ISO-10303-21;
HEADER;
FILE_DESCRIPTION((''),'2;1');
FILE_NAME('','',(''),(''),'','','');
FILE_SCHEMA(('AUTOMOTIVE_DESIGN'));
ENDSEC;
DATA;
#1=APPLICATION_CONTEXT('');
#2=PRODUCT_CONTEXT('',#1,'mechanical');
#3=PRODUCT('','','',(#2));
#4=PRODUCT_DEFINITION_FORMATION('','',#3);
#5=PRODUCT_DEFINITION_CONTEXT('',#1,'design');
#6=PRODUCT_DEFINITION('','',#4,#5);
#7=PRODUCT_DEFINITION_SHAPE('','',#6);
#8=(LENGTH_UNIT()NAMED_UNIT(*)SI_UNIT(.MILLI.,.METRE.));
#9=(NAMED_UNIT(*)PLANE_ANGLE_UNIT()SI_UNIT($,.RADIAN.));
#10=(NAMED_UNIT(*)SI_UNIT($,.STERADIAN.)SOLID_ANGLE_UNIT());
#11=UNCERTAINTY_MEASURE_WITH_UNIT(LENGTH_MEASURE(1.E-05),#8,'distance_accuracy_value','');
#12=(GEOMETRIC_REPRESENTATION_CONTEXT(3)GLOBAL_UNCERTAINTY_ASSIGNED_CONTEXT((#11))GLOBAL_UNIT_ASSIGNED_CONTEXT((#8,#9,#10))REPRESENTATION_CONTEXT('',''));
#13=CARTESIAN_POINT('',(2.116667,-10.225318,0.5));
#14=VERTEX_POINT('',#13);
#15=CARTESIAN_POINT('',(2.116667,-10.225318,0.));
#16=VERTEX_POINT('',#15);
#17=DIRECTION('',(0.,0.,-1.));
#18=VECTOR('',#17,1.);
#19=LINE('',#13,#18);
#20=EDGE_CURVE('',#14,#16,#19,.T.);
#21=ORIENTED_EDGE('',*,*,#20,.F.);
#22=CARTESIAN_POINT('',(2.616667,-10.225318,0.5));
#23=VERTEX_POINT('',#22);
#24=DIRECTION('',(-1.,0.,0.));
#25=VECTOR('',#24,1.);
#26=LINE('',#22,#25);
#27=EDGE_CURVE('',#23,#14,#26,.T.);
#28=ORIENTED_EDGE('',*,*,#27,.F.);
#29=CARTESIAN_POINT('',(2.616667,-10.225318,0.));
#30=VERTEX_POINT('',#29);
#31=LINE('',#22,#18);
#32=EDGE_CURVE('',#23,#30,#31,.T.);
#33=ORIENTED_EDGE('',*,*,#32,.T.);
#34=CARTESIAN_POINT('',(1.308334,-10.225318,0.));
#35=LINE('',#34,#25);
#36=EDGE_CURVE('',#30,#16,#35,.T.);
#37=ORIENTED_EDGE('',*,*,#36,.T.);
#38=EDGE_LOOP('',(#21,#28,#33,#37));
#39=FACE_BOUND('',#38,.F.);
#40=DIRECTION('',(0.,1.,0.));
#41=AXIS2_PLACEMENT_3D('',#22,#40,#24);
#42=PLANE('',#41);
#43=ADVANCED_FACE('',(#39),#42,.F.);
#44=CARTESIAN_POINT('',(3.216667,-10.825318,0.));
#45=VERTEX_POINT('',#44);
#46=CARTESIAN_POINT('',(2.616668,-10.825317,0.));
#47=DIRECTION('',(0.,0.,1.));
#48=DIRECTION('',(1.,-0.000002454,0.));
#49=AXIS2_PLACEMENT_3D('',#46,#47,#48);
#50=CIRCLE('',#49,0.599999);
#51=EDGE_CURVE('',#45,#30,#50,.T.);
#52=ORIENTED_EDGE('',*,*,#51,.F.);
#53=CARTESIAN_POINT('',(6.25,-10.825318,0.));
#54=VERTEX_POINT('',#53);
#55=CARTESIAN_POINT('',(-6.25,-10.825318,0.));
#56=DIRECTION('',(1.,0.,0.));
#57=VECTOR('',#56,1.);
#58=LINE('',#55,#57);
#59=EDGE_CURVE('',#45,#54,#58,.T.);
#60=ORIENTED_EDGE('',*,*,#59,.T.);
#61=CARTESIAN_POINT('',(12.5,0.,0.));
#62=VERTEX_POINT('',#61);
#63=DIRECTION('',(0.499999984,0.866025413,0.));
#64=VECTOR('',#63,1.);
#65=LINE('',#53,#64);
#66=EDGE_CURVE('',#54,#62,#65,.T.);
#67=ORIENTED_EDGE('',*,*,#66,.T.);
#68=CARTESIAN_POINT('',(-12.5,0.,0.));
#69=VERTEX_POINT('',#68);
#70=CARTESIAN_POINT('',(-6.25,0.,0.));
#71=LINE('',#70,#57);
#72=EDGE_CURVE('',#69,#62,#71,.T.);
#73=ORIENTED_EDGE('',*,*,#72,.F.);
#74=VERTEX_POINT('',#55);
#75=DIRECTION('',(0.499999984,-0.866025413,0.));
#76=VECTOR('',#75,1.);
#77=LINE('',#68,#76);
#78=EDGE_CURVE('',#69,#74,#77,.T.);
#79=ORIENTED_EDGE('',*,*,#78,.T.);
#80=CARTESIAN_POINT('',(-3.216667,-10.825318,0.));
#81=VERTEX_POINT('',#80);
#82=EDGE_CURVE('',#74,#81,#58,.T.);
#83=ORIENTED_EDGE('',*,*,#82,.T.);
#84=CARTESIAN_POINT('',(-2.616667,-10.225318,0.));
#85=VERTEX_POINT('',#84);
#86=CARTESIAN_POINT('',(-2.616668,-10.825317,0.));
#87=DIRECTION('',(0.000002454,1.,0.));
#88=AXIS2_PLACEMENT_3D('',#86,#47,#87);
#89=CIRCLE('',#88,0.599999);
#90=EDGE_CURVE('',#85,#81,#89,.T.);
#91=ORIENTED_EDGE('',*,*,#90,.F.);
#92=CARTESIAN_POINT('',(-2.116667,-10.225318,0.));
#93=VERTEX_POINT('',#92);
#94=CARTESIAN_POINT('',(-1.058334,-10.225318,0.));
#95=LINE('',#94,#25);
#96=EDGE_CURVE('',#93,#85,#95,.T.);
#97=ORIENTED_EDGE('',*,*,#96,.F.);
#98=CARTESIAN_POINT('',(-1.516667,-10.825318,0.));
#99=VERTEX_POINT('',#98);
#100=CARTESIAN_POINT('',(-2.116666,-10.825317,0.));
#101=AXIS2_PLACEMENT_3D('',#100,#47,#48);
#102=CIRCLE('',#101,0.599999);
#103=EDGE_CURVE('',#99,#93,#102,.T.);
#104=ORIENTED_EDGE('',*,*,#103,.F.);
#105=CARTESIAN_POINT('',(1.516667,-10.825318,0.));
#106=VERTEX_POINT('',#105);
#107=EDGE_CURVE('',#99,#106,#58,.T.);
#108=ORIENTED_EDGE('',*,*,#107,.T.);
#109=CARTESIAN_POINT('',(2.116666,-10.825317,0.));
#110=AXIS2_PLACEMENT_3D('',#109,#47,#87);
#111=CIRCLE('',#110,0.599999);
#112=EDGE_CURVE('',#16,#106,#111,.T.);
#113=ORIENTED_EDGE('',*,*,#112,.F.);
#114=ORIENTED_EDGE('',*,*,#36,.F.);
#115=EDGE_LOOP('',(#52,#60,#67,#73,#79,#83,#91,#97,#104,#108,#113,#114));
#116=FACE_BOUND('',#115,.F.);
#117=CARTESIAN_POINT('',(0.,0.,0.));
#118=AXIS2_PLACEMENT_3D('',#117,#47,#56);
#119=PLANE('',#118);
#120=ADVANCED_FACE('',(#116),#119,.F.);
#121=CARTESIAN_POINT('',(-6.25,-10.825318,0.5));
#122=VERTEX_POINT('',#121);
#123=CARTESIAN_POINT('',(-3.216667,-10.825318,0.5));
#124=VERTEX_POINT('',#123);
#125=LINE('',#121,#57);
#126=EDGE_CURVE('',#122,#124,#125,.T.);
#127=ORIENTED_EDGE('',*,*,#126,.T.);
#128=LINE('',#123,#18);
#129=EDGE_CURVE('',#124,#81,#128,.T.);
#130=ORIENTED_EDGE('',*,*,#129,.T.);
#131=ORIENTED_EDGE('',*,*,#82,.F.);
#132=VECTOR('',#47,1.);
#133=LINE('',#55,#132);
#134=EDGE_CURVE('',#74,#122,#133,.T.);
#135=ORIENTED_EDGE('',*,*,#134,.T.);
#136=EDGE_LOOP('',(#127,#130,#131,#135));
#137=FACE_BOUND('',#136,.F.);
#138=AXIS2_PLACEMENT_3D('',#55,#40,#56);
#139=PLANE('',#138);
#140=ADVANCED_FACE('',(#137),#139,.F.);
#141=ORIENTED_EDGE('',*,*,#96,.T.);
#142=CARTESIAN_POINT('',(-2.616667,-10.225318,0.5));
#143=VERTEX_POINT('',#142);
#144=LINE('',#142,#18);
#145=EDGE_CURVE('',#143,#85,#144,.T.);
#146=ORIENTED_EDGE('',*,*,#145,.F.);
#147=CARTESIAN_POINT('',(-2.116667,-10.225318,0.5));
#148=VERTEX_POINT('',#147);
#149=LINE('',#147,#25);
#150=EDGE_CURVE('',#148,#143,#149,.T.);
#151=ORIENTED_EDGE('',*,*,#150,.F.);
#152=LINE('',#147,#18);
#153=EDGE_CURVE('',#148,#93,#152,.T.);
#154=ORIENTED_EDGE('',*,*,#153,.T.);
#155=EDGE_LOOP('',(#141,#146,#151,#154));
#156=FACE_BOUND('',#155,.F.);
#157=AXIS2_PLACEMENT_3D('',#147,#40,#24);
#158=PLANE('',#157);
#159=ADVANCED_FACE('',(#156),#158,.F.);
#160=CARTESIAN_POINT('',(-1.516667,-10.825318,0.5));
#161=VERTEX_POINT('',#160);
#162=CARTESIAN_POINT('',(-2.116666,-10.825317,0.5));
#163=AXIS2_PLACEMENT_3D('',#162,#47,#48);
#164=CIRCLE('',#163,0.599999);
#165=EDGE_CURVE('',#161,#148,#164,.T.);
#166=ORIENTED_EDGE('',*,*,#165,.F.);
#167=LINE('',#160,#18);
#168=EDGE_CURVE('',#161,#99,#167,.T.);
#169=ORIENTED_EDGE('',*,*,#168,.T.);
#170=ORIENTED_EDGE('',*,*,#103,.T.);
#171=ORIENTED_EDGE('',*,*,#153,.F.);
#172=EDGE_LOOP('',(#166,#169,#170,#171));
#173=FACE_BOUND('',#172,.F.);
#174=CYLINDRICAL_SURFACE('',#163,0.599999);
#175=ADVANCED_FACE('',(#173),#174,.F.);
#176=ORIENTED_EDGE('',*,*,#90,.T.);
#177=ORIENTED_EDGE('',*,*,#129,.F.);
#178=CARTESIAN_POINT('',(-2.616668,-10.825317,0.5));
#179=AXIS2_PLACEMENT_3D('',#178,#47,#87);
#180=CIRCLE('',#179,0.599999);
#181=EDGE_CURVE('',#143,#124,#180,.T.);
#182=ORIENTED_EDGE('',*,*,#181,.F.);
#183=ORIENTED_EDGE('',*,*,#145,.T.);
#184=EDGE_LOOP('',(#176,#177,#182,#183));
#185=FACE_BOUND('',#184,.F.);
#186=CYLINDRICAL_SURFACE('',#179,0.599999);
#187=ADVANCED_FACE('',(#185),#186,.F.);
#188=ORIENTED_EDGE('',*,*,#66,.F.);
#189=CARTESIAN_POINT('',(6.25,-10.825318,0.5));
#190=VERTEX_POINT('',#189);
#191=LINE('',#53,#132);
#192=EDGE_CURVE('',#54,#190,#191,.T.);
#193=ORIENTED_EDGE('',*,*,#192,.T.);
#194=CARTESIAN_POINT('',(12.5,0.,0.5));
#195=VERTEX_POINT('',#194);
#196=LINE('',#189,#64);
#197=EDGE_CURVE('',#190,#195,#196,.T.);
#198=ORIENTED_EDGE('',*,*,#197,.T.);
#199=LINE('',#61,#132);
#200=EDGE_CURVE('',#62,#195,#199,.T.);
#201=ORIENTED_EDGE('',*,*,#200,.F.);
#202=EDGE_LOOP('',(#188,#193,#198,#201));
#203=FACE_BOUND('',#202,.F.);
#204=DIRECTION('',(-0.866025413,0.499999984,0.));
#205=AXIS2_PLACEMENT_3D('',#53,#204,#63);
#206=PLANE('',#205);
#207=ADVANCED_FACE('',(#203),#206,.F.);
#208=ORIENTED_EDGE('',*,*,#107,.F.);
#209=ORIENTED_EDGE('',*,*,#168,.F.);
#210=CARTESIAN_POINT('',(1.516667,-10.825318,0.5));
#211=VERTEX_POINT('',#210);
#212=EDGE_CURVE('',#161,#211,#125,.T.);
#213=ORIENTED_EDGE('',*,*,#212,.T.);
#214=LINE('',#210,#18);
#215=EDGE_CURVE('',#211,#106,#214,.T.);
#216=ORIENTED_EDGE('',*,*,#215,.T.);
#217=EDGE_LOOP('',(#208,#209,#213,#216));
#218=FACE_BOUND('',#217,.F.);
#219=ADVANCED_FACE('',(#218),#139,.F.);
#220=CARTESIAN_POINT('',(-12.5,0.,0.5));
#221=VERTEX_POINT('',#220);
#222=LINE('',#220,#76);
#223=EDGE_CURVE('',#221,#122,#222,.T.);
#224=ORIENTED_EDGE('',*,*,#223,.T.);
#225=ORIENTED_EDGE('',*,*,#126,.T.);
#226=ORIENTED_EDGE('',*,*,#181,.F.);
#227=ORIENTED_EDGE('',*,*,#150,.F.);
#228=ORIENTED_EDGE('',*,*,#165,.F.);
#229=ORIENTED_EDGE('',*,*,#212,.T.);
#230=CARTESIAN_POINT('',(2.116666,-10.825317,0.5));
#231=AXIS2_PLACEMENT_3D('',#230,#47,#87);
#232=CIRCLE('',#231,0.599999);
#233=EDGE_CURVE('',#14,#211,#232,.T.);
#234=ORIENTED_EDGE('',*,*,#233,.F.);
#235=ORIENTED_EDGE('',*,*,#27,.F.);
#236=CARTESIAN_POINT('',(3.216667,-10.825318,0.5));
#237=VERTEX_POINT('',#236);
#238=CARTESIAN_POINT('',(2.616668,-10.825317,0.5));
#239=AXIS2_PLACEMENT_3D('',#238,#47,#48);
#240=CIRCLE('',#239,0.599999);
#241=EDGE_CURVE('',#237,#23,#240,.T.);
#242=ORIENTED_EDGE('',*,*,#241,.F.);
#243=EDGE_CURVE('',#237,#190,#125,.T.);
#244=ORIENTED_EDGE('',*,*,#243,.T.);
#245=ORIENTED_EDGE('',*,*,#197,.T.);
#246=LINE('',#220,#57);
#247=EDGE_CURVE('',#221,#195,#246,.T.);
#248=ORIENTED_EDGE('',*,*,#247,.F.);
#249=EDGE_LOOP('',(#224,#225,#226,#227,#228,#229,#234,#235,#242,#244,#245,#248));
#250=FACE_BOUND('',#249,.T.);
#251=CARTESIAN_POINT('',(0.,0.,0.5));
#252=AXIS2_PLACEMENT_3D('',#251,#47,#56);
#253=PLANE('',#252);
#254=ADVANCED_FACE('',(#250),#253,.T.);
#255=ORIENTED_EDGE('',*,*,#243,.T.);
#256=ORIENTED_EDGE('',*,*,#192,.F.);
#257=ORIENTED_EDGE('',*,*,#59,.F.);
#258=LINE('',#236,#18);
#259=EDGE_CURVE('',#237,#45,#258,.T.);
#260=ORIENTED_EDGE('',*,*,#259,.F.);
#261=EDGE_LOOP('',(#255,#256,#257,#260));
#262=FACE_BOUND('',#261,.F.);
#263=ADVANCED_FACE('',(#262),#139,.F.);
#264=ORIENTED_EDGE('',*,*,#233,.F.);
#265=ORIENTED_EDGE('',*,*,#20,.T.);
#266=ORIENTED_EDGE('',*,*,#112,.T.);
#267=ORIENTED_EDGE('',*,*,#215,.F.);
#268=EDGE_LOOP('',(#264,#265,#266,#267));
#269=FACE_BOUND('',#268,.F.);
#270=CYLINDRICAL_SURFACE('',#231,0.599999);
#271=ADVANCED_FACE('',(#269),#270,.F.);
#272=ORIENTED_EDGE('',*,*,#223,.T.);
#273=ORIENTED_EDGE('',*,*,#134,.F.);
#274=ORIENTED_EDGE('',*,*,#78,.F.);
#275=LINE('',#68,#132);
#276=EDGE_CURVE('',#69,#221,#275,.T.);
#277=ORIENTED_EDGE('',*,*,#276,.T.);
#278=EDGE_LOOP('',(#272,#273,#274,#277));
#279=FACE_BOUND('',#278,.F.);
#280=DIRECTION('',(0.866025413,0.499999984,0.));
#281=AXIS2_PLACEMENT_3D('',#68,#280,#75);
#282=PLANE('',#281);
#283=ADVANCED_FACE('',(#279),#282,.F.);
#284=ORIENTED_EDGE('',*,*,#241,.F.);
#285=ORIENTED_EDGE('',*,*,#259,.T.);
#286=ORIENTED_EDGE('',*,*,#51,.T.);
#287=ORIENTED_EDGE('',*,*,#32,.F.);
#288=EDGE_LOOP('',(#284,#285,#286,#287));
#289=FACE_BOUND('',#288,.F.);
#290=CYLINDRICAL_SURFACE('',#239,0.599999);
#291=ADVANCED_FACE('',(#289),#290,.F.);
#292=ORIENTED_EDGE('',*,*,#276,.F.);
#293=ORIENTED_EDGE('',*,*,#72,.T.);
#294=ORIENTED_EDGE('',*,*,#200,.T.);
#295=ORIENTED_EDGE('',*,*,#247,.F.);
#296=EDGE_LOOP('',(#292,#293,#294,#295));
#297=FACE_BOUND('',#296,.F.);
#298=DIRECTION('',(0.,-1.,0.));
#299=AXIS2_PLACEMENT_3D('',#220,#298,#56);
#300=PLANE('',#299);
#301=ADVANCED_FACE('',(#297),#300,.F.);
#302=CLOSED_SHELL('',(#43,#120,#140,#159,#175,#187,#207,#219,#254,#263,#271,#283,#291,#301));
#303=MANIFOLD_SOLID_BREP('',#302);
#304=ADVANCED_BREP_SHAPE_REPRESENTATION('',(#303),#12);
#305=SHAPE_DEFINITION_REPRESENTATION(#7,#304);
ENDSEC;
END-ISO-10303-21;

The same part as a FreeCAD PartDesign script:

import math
import FreeCAD as App
import Part
import Sketcher

V = App.Vector
Q = App.Units.Quantity

doc = App.newDocument("Part")
params = doc.addObject("Spreadsheet::Sheet", "Params")
for row, (alias, value) in enumerate([
    ("sketch1_width", "12.5 mm"),
    ("pad1_length", "0.5 mm"),
    ("sketch2_radius", "0.599999 mm"),
    ("sketch2_width", "0.5 mm"),
    ("sketch2_width2", "1.7 mm"),
    ("sketch3_width", "25 mm"),
    ("sketch3_width2", "12.5 mm"),
], start=1):
    params.set(f"A{row}", alias)
    params.set(f"B{row}", "=" + value)
    params.setAlias(f"B{row}", alias)

body = doc.addObject("PartDesign::Body", "Body")

# Sketch on XY plane
sketch1 = body.newObject("Sketcher::SketchObject", "Sketch")
sketch1.AttachmentSupport = (doc.getObject("XY_Plane"), [""])
sketch1.MapMode = "FlatFace"
sketch1.addGeometry(Part.LineSegment(V(6.25, -10.825318, 0), V(12.5, 0, 0)), False)
sketch1.addGeometry(Part.LineSegment(V(12.5, 0, 0), V(6.25, 10.825318, 0)), False)
sketch1.addGeometry(Part.LineSegment(V(6.25, 10.825318, 0), V(-6.25, 10.825318, 0)), False)
sketch1.addGeometry(Part.LineSegment(V(-6.25, 10.825318, 0), V(-12.5, 0, 0)), False)
sketch1.addGeometry(Part.LineSegment(V(-12.5, 0, 0), V(-6.25, -10.825318, 0)), False)
sketch1.addGeometry(Part.LineSegment(V(-6.25, -10.825318, 0), V(6.25, -10.825318, 0)), False)
sketch1.addConstraint(Sketcher.Constraint("Coincident", 0, 2, 1, 1))
sketch1.addConstraint(Sketcher.Constraint("Coincident", 1, 2, 2, 1))
sketch1.addConstraint(Sketcher.Constraint("Coincident", 2, 2, 3, 1))
sketch1.addConstraint(Sketcher.Constraint("Coincident", 3, 2, 4, 1))
sketch1.addConstraint(Sketcher.Constraint("Coincident", 4, 2, 5, 1))
sketch1.addConstraint(Sketcher.Constraint("Coincident", 5, 2, 0, 1))
sketch1.addConstraint(Sketcher.Constraint("Horizontal", 2))
sketch1.addConstraint(Sketcher.Constraint("Horizontal", 5))
sketch1.addConstraint(Sketcher.Constraint("Symmetric", 0, 2, 3, 2, -1, 1))
sketch1.addConstraint(Sketcher.Constraint("Symmetric", 1, 2, 4, 2, -1, 1))
sketch1.addConstraint(Sketcher.Constraint("PointOnObject", 0, 2, -1))
sketch1.addConstraint(Sketcher.Constraint("Parallel", 0, 3))
sketch1.addConstraint(Sketcher.Constraint("Vertical", 2, 2, 4, 2))
sketch1.addConstraint(Sketcher.Constraint("Angle", 0, Q("60.000001 deg")))
sketch1.addConstraint(Sketcher.Constraint("DistanceX", 2, 2, 2, 1, 12.5))
sketch1.addConstraint(Sketcher.Constraint("DistanceX", 3, 2, 0, 2, 25.0))
sketch1.setExpression("Constraints[14]", "Params.sketch1_width")
pad1 = body.newObject("PartDesign::Pad", "Pad")
pad1.Profile = sketch1
pad1.setExpression("Length", "Params.pad1_length")

# Sketch on XY plane
sketch2 = body.newObject("Sketcher::SketchObject", "Sketch001")
sketch2.AttachmentSupport = (doc.getObject("XY_Plane"), [""])
sketch2.MapMode = "FlatFace"
sketch2.AttachmentOffset = App.Placement(V(0, 0, 0.5), App.Rotation())
sketch2.addGeometry(Part.ArcOfCircle(Part.Circle(V(2.616668, -10.825317, 0), V(0, 0, 1), 0.599999), math.radians(-0.000141), math.radians(90.000141)), False)
sketch2.addGeometry(Part.LineSegment(V(2.616667, -10.225318, 0), V(2.116667, -10.225318, 0)), False)
sketch2.addGeometry(Part.ArcOfCircle(Part.Circle(V(2.116666, -10.825317, 0), V(0, 0, 1), 0.599999), math.radians(89.999859), math.radians(180.000141)), False)
sketch2.addGeometry(Part.LineSegment(V(1.516667, -10.825318, 0), V(3.216667, -10.825318, 0)), False)
sketch2.addGeometry(Part.LineSegment(V(-3.216667, -10.825318, 0), V(-1.516667, -10.825318, 0)), False)
sketch2.addGeometry(Part.ArcOfCircle(Part.Circle(V(-2.116666, -10.825317, 0), V(0, 0, 1), 0.599999), math.radians(-0.000141), math.radians(90.000141)), False)
sketch2.addGeometry(Part.LineSegment(V(-2.116667, -10.225318, 0), V(-2.616667, -10.225318, 0)), False)
sketch2.addGeometry(Part.ArcOfCircle(Part.Circle(V(-2.616668, -10.825317, 0), V(0, 0, 1), 0.599999), math.radians(89.999859), math.radians(180.000141)), False)
sketch2.addConstraint(Sketcher.Constraint("Coincident", 0, 2, 1, 1))
sketch2.addConstraint(Sketcher.Constraint("Coincident", 1, 2, 2, 1))
sketch2.addConstraint(Sketcher.Constraint("Coincident", 2, 2, 3, 1))
sketch2.addConstraint(Sketcher.Constraint("Coincident", 3, 2, 0, 1))
sketch2.addConstraint(Sketcher.Constraint("Coincident", 4, 2, 5, 1))
sketch2.addConstraint(Sketcher.Constraint("Coincident", 5, 2, 6, 1))
sketch2.addConstraint(Sketcher.Constraint("Coincident", 6, 2, 7, 1))
sketch2.addConstraint(Sketcher.Constraint("Coincident", 7, 2, 4, 1))
sketch2.addConstraint(Sketcher.Constraint("Horizontal", 1))
sketch2.addConstraint(Sketcher.Constraint("Horizontal", 3))
sketch2.addConstraint(Sketcher.Constraint("Horizontal", 4))
sketch2.addConstraint(Sketcher.Constraint("Horizontal", 6))
sketch2.addConstraint(Sketcher.Constraint("Equal", 0, 2))
sketch2.addConstraint(Sketcher.Constraint("Equal", 2, 5))
sketch2.addConstraint(Sketcher.Constraint("Equal", 5, 7))
sketch2.addConstraint(Sketcher.Constraint("Symmetric", 2, 3, 5, 3, -2))
sketch2.addConstraint(Sketcher.Constraint("Symmetric", 3, 2, 7, 2, -2))
sketch2.addConstraint(Sketcher.Constraint("Horizontal", 7, 3, 2, 2))
sketch2.addConstraint(Sketcher.Constraint("Vertical", 2, 3, 1, 2))
sketch2.addConstraint(Sketcher.Constraint("Vertical", 7, 3, 6, 2))
sketch2.addConstraint(Sketcher.Constraint("Equal", 1, 6))
sketch2.addConstraint(Sketcher.Constraint("Radius", 0, 0.599999))
sketch2.addConstraint(Sketcher.Constraint("DistanceX", 1, 2, 1, 1, 0.5))
sketch2.addConstraint(Sketcher.Constraint("DistanceX", 3, 1, 3, 2, 1.7))
sketch2.addConstraint(Sketcher.Constraint("DistanceX", -1, 1, 0, 3, 2.616668))
sketch2.addConstraint(Sketcher.Constraint("DistanceY", 0, 2, -1, 1, 10.225318))
sketch2.setExpression("Constraints[21]", "Params.sketch2_radius")
sketch2.setExpression("Constraints[22]", "Params.sketch2_width")
sketch2.setExpression("Constraints[23]", "Params.sketch2_width2")
pocket1 = body.newObject("PartDesign::Pocket", "Pocket")
pocket1.Profile = sketch2
pocket1.Type = "ThroughAll"

# Sketch on XY plane
sketch3 = body.newObject("Sketcher::SketchObject", "Sketch002")
sketch3.AttachmentSupport = (doc.getObject("XY_Plane"), [""])
sketch3.MapMode = "FlatFace"
sketch3.AttachmentOffset = App.Placement(V(0, 0, 0.5), App.Rotation())
sketch3.addGeometry(Part.LineSegment(V(-6.25, 10.825318, 0), V(-12.5, 0, 0)), False)
sketch3.addGeometry(Part.LineSegment(V(-12.5, 0, 0), V(12.5, 0, 0)), False)
sketch3.addGeometry(Part.LineSegment(V(12.5, 0, 0), V(6.25, 10.825318, 0)), False)
sketch3.addGeometry(Part.LineSegment(V(6.25, 10.825318, 0), V(-6.25, 10.825318, 0)), False)
sketch3.addConstraint(Sketcher.Constraint("Coincident", 0, 2, 1, 1))
sketch3.addConstraint(Sketcher.Constraint("Coincident", 1, 2, 2, 1))
sketch3.addConstraint(Sketcher.Constraint("Coincident", 2, 2, 3, 1))
sketch3.addConstraint(Sketcher.Constraint("Coincident", 3, 2, 0, 1))
sketch3.addConstraint(Sketcher.Constraint("Horizontal", 1))
sketch3.addConstraint(Sketcher.Constraint("Horizontal", 3))
sketch3.addConstraint(Sketcher.Constraint("Symmetric", 0, 2, 1, 2, -1, 1))
sketch3.addConstraint(Sketcher.Constraint("Equal", 0, 2))
sketch3.addConstraint(Sketcher.Constraint("DistanceX", 1, 1, 1, 2, 25.0))
sketch3.addConstraint(Sketcher.Constraint("Angle", 0, Q("-119.999999 deg")))
sketch3.addConstraint(Sketcher.Constraint("DistanceX", 3, 2, 3, 1, 12.5))
sketch3.setExpression("Constraints[8]", "Params.sketch3_width")
sketch3.setExpression("Constraints[10]", "Params.sketch3_width2")
pocket2 = body.newObject("PartDesign::Pocket", "Pocket001")
pocket2.Profile = sketch3
pocket2.Type = "ThroughAll"

doc.recompute()
